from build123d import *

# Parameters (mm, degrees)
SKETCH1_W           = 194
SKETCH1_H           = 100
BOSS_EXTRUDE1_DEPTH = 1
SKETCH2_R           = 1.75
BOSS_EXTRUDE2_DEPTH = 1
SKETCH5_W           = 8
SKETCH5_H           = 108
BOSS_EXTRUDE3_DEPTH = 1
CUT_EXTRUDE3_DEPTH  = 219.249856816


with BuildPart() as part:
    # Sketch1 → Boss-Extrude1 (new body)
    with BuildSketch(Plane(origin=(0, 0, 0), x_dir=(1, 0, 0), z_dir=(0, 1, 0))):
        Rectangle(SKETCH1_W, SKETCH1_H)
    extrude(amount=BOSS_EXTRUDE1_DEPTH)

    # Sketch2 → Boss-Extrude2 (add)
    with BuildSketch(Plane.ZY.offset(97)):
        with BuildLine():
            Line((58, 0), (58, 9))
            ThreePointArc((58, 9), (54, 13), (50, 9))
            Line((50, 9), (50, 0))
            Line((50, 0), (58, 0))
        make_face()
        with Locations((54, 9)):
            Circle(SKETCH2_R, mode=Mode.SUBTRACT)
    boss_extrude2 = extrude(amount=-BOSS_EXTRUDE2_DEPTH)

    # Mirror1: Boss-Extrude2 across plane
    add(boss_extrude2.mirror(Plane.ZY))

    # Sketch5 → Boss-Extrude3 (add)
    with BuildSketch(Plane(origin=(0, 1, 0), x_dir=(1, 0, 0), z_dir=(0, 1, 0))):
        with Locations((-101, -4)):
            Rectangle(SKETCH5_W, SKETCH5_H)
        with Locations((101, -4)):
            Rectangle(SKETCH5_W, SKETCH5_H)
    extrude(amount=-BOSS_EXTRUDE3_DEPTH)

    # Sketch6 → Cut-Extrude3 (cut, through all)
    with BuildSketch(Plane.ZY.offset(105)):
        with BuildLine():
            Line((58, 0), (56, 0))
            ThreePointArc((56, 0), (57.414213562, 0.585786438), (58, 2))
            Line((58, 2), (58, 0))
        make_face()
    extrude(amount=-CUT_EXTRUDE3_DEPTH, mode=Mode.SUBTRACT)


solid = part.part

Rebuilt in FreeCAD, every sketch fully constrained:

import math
import FreeCAD as App
import Part
import Sketcher

doc = App.newDocument("Part")
body = doc.addObject("PartDesign::Body", "Body")

sketch1 = doc.addObject("Sketcher::SketchObject", "Sketch")
body.addObject(sketch1)
sketch1.AttachmentSupport = (doc.XZ_Plane, [""])
sketch1.MapMode = "FlatFace"
sketch1.addGeometry(Part.LineSegment(App.Vector(-97, -50, 0), App.Vector(-97, 50, 0)), False)
sketch1.addGeometry(Part.LineSegment(App.Vector(-97, 50, 0), App.Vector(97, 50, 0)), False)
sketch1.addGeometry(Part.LineSegment(App.Vector(97, 50, 0), App.Vector(97, -50, 0)), False)
sketch1.addGeometry(Part.LineSegment(App.Vector(97, -50, 0), App.Vector(-97, -50, 0)), False)
sketch1.addConstraint(Sketcher.Constraint("Coincident", 0, 2, 1, 1))
sketch1.addConstraint(Sketcher.Constraint("Coincident", 1, 2, 2, 1))
sketch1.addConstraint(Sketcher.Constraint("Coincident", 2, 2, 3, 1))
sketch1.addConstraint(Sketcher.Constraint("Coincident", 3, 2, 0, 1))
sketch1.addConstraint(Sketcher.Constraint("Vertical", 0))
sketch1.addConstraint(Sketcher.Constraint("Horizontal", 1))
sketch1.addConstraint(Sketcher.Constraint("Vertical", 2))
sketch1.addConstraint(Sketcher.Constraint("Horizontal", 3))
sketch1.addConstraint(Sketcher.Constraint("Symmetric", 0, 2, 2, 2, -1, 1))
sketch1.addConstraint(Sketcher.Constraint("DistanceX", 1, 1, 1, 2, 194.0))
sketch1.addConstraint(Sketcher.Constraint("DistanceY", 0, 1, 0, 2, 100.0))
pad1 = doc.addObject("PartDesign::Pad", "Pad")
body.addObject(pad1)
pad1.Profile = sketch1
pad1.Length = 1
pad1.Reversed = True

sketch2 = doc.addObject("Sketcher::SketchObject", "Sketch001")
body.addObject(sketch2)
sketch2.AttachmentSupport = (doc.YZ_Plane, [""])
sketch2.MapMode = "FlatFace"
sketch2.AttachmentOffset = App.Placement(App.Vector(0, 0, -97), App.Rotation())
sketch2.addGeometry(Part.LineSegment(App.Vector(0, 58, 0), App.Vector(9, 58, 0)), False)
sketch2.addGeometry(Part.ArcOfCircle(Part.Circle(App.Vector(9, 54, 0), App.Vector(0, 0, 1), 4), math.radians(-90), math.radians(90)), False)
sketch2.addGeometry(Part.LineSegment(App.Vector(9, 50, 0), App.Vector(0, 50, 0)), False)
sketch2.addGeometry(Part.LineSegment(App.Vector(0, 50, 0), App.Vector(0, 58, 0)), False)
sketch2.addGeometry(Part.Circle(App.Vector(9, 54, 0), App.Vector(0, 0, 1), 1.8), False)
sketch2.addConstraint(Sketcher.Constraint("Tangent", 0, 2, 1, 2))
sketch2.addConstraint(Sketcher.Constraint("Tangent", 1, 1, 2, 1))
sketch2.addConstraint(Sketcher.Constraint("Coincident", 2, 2, 3, 1))
sketch2.addConstraint(Sketcher.Constraint("Coincident", 3, 2, 0, 1))
sketch2.addConstraint(Sketcher.Constraint("Horizontal", 0))
sketch2.addConstraint(Sketcher.Constraint("Horizontal", 2))
sketch2.addConstraint(Sketcher.Constraint("Vertical", 3))
sketch2.addConstraint(Sketcher.Constraint("Coincident", 4, 3, 1, 3))
sketch2.addConstraint(Sketcher.Constraint("PointOnObject", 2, 2, -2))
sketch2.addConstraint(Sketcher.Constraint("Radius", 1, 4.0))
sketch2.addConstraint(Sketcher.Constraint("Diameter", 4, 3.5))
sketch2.addConstraint(Sketcher.Constraint("DistanceX", 0, 1, 0, 2, 9.0))
sketch2.addConstraint(Sketcher.Constraint("DistanceY", -1, 1, 1, 3, 54.0))
pad2 = doc.addObject("PartDesign::Pad", "Pad001")
body.addObject(pad2)
pad2.Profile = sketch2
pad2.Length = 1
doc.recompute()

mirrored = doc.addObject("PartDesign::Mirrored", "Mirrored")
body.addObject(mirrored)
mirrored.Originals = [pad2]
mirrored.MirrorPlane = (doc.YZ_Plane, [""])
body.Tip = mirrored

sketch3 = doc.addObject("Sketcher::SketchObject", "Sketch002")
body.addObject(sketch3)
sketch3.AttachmentSupport = (doc.XZ_Plane, [""])
sketch3.MapMode = "FlatFace"
sketch3.AttachmentOffset = App.Placement(App.Vector(0, 0, -1), App.Rotation())
sketch3.addGeometry(Part.LineSegment(App.Vector(-105, -50, 0), App.Vector(-105, 58, 0)), False)
sketch3.addGeometry(Part.LineSegment(App.Vector(-105, 58, 0), App.Vector(-97, 58, 0)), False)
sketch3.addGeometry(Part.LineSegment(App.Vector(-97, 58, 0), App.Vector(-97, -50, 0)), False)
sketch3.addGeometry(Part.LineSegment(App.Vector(-97, -50, 0), App.Vector(-105, -50, 0)), False)
sketch3.addGeometry(Part.LineSegment(App.Vector(97, -50, 0), App.Vector(97, 58, 0)), False)
sketch3.addGeometry(Part.LineSegment(App.Vector(97, 58, 0), App.Vector(105, 58, 0)), False)
sketch3.addGeometry(Part.LineSegment(App.Vector(105, 58, 0), App.Vector(105, -50, 0)), False)
sketch3.addGeometry(Part.LineSegment(App.Vector(105, -50, 0), App.Vector(97, -50, 0)), False)
sketch3.addConstraint(Sketcher.Constraint("Coincident", 0, 2, 1, 1))
sketch3.addConstraint(Sketcher.Constraint("Coincident", 1, 2, 2, 1))
sketch3.addConstraint(Sketcher.Constraint("Coincident", 2, 2, 3, 1))
sketch3.addConstraint(Sketcher.Constraint("Coincident", 3, 2, 0, 1))
sketch3.addConstraint(Sketcher.Constraint("Coincident", 4, 2, 5, 1))
sketch3.addConstraint(Sketcher.Constraint("Coincident", 5, 2, 6, 1))
sketch3.addConstraint(Sketcher.Constraint("Coincident", 6, 2, 7, 1))
sketch3.addConstraint(Sketcher.Constraint("Coincident", 7, 2, 4, 1))
sketch3.addConstraint(Sketcher.Constraint("Vertical", 0))
sketch3.addConstraint(Sketcher.Constraint("Horizontal", 1))
sketch3.addConstraint(Sketcher.Constraint("Vertical", 2))
sketch3.addConstraint(Sketcher.Constraint("Horizontal", 3))
sketch3.addConstraint(Sketcher.Constraint("Vertical", 4))
sketch3.addConstraint(Sketcher.Constraint("Horizontal", 5))
sketch3.addConstraint(Sketcher.Constraint("Vertical", 6))
sketch3.addConstraint(Sketcher.Constraint("Horizontal", 7))
sketch3.addConstraint(Sketcher.Constraint("Symmetric", 1, 2, 4, 2, -2))
sketch3.addConstraint(Sketcher.Constraint("Symmetric", 3, 2, 6, 2, -2))
sketch3.addConstraint(Sketcher.Constraint("DistanceX", 1, 1, 1, 2, 8.0))
sketch3.addConstraint(Sketcher.Constraint("DistanceY", 0, 1, 0, 2, 108.0))
sketch3.addConstraint(Sketcher.Constraint("DistanceX", 0, 2, -1, 1, 105.0))
sketch3.addConstraint(Sketcher.Constraint("DistanceY", -1, 1, 0, 2, 58.0))
pad3 = doc.addObject("PartDesign::Pad", "Pad002")
body.addObject(pad3)
pad3.Profile = sketch3
pad3.Length = 1

sketch4 = doc.addObject("Sketcher::SketchObject", "Sketch003")
body.addObject(sketch4)
sketch4.AttachmentSupport = (doc.YZ_Plane, [""])
sketch4.MapMode = "FlatFace"
sketch4.AttachmentOffset = App.Placement(App.Vector(0, 0, -105), App.Rotation())
sketch4.addGeometry(Part.LineSegment(App.Vector(0, 56, 0), App.Vector(0, 58, 0)), False)
sketch4.addGeometry(Part.LineSegment(App.Vector(0, 58, 0), App.Vector(2, 58, 0)), False)
sketch4.addGeometry(Part.ArcOfCircle(Part.Circle(App.Vector(2, 56, 0), App.Vector(0, 0, 1), 2), math.radians(90), math.radians(180)), False)
sketch4.addConstraint(Sketcher.Constraint("Coincident", 0, 2, 1, 1))
sketch4.addConstraint(Sketcher.Constraint("Tangent", 1, 2, 2, 1))
sketch4.addConstraint(Sketcher.Constraint("Tangent", 2, 2, 0, 1))
sketch4.addConstraint(Sketcher.Constraint("Vertical", 0))
sketch4.addConstraint(Sketcher.Constraint("Horizontal", 1))
sketch4.addConstraint(Sketcher.Constraint("PointOnObject", 0, 2, -2))
sketch4.addConstraint(Sketcher.Constraint("Radius", 2, 2.0))
sketch4.addConstraint(Sketcher.Constraint("DistanceY", -1, 1, 2, 3, 56.0))
pocket1 = doc.addObject("PartDesign::Pocket", "Pocket")
body.addObject(pocket1)
pocket1.Profile = sketch4
pocket1.Type = "ThroughAll"
pocket1.Reversed = True

doc.recompute()
